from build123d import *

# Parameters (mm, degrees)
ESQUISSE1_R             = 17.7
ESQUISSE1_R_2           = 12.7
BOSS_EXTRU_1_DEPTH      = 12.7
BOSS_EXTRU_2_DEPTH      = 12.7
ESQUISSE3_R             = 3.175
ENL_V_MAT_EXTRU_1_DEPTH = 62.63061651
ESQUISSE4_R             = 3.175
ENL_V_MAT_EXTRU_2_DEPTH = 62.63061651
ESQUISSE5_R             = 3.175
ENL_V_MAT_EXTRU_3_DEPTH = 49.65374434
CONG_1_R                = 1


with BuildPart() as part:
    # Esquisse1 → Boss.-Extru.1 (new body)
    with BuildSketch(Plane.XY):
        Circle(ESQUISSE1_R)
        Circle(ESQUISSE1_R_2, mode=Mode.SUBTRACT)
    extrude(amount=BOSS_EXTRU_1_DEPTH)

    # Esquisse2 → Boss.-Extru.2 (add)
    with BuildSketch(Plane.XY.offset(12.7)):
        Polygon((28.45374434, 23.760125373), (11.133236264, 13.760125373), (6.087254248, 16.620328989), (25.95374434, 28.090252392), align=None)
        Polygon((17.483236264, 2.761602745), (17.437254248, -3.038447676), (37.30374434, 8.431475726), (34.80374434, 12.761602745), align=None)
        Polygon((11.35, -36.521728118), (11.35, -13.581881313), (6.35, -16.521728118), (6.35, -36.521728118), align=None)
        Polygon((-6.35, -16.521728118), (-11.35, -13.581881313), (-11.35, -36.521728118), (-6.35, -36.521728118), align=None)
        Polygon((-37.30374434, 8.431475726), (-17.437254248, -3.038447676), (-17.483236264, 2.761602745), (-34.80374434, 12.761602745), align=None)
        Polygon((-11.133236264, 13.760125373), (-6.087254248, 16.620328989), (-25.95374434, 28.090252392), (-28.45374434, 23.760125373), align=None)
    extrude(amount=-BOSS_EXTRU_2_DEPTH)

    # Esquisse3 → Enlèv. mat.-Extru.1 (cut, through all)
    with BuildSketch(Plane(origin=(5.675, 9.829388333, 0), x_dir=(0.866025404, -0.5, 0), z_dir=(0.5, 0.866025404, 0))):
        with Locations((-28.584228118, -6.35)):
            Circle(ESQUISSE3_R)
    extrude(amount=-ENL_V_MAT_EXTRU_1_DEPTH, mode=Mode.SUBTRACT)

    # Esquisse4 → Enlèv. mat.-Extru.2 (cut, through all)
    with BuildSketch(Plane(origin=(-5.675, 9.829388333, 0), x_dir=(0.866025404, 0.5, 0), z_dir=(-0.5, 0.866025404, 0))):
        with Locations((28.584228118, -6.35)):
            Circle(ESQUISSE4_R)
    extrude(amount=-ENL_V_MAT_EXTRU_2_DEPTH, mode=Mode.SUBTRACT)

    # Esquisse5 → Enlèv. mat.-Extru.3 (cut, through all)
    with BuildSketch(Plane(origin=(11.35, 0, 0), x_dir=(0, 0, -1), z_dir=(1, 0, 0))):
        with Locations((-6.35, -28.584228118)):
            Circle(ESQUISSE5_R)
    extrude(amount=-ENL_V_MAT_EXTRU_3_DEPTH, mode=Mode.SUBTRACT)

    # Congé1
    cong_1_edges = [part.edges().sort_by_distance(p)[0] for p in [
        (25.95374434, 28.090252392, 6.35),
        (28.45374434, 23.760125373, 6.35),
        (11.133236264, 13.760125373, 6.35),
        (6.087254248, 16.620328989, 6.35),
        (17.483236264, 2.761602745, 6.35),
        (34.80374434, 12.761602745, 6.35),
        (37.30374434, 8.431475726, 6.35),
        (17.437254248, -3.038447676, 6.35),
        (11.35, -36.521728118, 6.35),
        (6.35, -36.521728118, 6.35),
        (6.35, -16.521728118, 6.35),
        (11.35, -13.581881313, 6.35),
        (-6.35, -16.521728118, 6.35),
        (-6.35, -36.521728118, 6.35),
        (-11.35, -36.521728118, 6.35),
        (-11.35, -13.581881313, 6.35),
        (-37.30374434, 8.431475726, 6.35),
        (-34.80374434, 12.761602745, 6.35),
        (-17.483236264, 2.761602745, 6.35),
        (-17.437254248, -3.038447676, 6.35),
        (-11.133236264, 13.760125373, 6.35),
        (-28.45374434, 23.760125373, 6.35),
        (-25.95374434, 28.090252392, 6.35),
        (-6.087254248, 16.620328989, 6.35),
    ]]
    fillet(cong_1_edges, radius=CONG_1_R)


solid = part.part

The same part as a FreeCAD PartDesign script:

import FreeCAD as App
import Part
import Sketcher

V = App.Vector
Q = App.Units.Quantity


def edges_at(feature, points):
    """Names of the edges that pass closest to the given points."""
    edges = feature.Shape.Edges
    near = lambda p: min(range(len(edges)), key=lambda i: edges[i].distToShape(Part.Vertex(*p))[0])
    return sorted({f"Edge{near(p) + 1}" for p in points})


def add_polygon(sketch, points):
    """Adds a closed chain of lines whose ends are joined by coincident constraints."""
    first, n = sketch.GeometryCount, len(points)
    for a, b in zip(points, points[1:] + points[:1]):
        sketch.addGeometry(Part.LineSegment(App.Vector(*a, 0), App.Vector(*b, 0)), False)
    for i in range(n):
        sketch.addConstraint(Sketcher.Constraint("Coincident", first + i, 2, first + (i + 1) % n, 1))

doc = App.newDocument("Part")
body = doc.addObject("PartDesign::Body", "Body")

sketch1 = body.newObject("Sketcher::SketchObject", "Sketch")
sketch1.AttachmentSupport = (doc.getObject("XY_Plane"), [""])
sketch1.MapMode = "FlatFace"
sketch1.addGeometry([
    Part.Circle(V(0, 0, 0), V(0, 0, 1), 18),
    Part.Circle(V(0, 0, 0), V(0, 0, 1), 13),
], False)
sketch1.addConstraint([
    Sketcher.Constraint("Coincident", 0, 3, -1, 1),
    Sketcher.Constraint("Coincident", 1, 3, -1, 1),
    Sketcher.Constraint("Diameter", 0, 35.4),
    Sketcher.Constraint("Diameter", 1, 25.4),
])
pad1 = body.newObject("PartDesign::Pad", "Pad")
pad1.Profile = sketch1
pad1.Length = 12.7

sketch2 = body.newObject("Sketcher::SketchObject", "Sketch001")
sketch2.AttachmentSupport = (doc.getObject("XY_Plane"), [""])
sketch2.MapMode = "FlatFace"
sketch2.AttachmentOffset = App.Placement(V(0, 0, 12.7), App.Rotation())
add_polygon(sketch2, [(11, 14), (28, 24), (26, 28), (6, 17)])
add_polygon(sketch2, [(17, 3), (17, -3), (37, 8), (35, 13)])
add_polygon(sketch2, [(11, -37), (11, -14), (6, -17), (6, -37)])
add_polygon(sketch2, [(-6, -17), (-11, -14), (-11, -37), (-6, -37)])
add_polygon(sketch2, [(-37, 8), (-17, -3), (-17, 3), (-35, 13)])
add_polygon(sketch2, [(-11, 14), (-6, 17), (-26, 28), (-28, 24)])
sketch2.addConstraint([
    Sketcher.Constraint("Vertical", 8),
    Sketcher.Constraint("Vertical", 10),
    Sketcher.Constraint("Horizontal", 11),
    Sketcher.Constraint("Vertical", 13),
    Sketcher.Constraint("Horizontal", 14),
    Sketcher.Constraint("Vertical", 15),
    Sketcher.Constraint("Symmetric", 8, 2, 12, 2, -2),
    Sketcher.Constraint("Symmetric", 10, 2, 14, 2, -2),
    Sketcher.Constraint("Symmetric", 4, 2, 16, 2, -2),
    Sketcher.Constraint("Symmetric", 7, 2, 17, 2, -2),
    Sketcher.Constraint("Symmetric", 6, 2, 18, 2, -2),
    Sketcher.Constraint("Symmetric", 5, 2, 19, 2, -2),
    Sketcher.Constraint("Symmetric", 2, 2, 20, 2, -2),
    Sketcher.Constraint("Symmetric", 1, 2, 21, 2, -2),
    Sketcher.Constraint("Symmetric", 0, 2, 22, 2, -2),
    Sketcher.Constraint("Symmetric", 3, 2, 23, 2, -2),
    Sketcher.Constraint("Perpendicular", 0, 1),
    Sketcher.Constraint("Perpendicular", 1, 2),
    Sketcher.Constraint("Parallel", 2, 5),
    Sketcher.Constraint("Perpendicular", 5, 6),
    Sketcher.Constraint("Perpendicular", 6, 7),
    Sketcher.Constraint("Horizontal", 9, 2, 15, 2),
    Sketcher.Constraint("Equal", 3, 4),
    Sketcher.Constraint("Equal", 2, 5),
    Sketcher.Constraint("Equal", 1, 6),
    Sketcher.Constraint("Equal", 4, 9),
    Sketcher.Constraint("DistanceX", 11, 1, 11, 2, 5.0),
    Sketcher.Constraint("DistanceY", 10, 2, 10, 1, 20.0),
    Sketcher.Constraint("Angle", 0, Q("30 deg")),
    Sketcher.Constraint("Distance", 0, 20.0),
    Sketcher.Constraint("Distance", 1, 5.0),
    Sketcher.Constraint("DistanceX", 12, 2, 9, 2, 17.7),
    Sketcher.Constraint("DistanceX", 2, 2, 4, 2, 11.35),
    Sketcher.Constraint("DistanceX", 18, 2, 2, 2, 40.890999),
    Sketcher.Constraint("DistanceY", 4, 2, 1, 2, 31.1287),
    Sketcher.Constraint("DistanceY", 8, 1, 8, 2, 22.939847),
    Sketcher.Constraint("DistanceY", -1, 1, 2, 2, 16.620329),
    Sketcher.Constraint("DistanceY", 8, 2, -1, 1, 13.581881),
])
pad2 = body.newObject("PartDesign::Pad", "Pad001")
pad2.Profile = sketch2
pad2.Length = 12.7
pad2.Reversed = True

sketch3 = body.newObject("Sketcher::SketchObject", "Sketch002")
sketch3.Placement = App.Placement(V(5.675, 9.829388, 0), App.Rotation(V(0.866025404, -0.5, 0), V(0, 0, -1), V(0.5, 0.866025404, 0), "ZXY"))
sketch3.addGeometry(Part.Circle(V(-28.6, -6.4, 0), V(0, 0, 1), 3.2), False)
sketch3.addConstraint([
    Sketcher.Constraint("Diameter", 0, 6.35),
    Sketcher.Constraint("DistanceY", 0, 3, -1, 1, 6.35),
    Sketcher.Constraint("DistanceX", 0, 3, -1, 1, 28.584228),
])
pocket1 = body.newObject("PartDesign::Pocket", "Pocket")
pocket1.Profile = sketch3
pocket1.Type = "ThroughAll"

sketch4 = body.newObject("Sketcher::SketchObject", "Sketch003")
sketch4.Placement = App.Placement(V(-5.675, 9.829388, 0), App.Rotation(V(0.866025404, 0.5, 0), V(0, 0, -1), V(-0.5, 0.866025404, 0), "ZXY"))
sketch4.addGeometry(Part.Circle(V(28.6, -6.4, 0), V(0, 0, 1), 3.2), False)
sketch4.addConstraint([
    Sketcher.Constraint("Diameter", 0, 6.35),
    Sketcher.Constraint("DistanceY", 0, 3, -1, 1, 6.35),
    Sketcher.Constraint("DistanceX", -1, 1, 0, 3, 28.584228),
])
pocket2 = body.newObject("PartDesign::Pocket", "Pocket001")
pocket2.Profile = sketch4
pocket2.Type = "ThroughAll"

sketch5 = body.newObject("Sketcher::SketchObject", "Sketch004")
sketch5.AttachmentSupport = (doc.getObject("YZ_Plane"), [""])
sketch5.MapMode = "FlatFace"
sketch5.AttachmentOffset = App.Placement(V(0, 0, 11.35), App.Rotation())
sketch5.addGeometry(Part.Circle(V(-28.6, 6.3, 0), V(0, 0, 1), 3.2), False)
sketch5.addConstraint([
    Sketcher.Constraint("Diameter", 0, 6.35),
    Sketcher.Constraint("DistanceY", -1, 1, 0, 3, 6.35),
    Sketcher.Constraint("DistanceX", 0, 3, -1, 1, 28.584228),
])
pocket3 = body.newObject("PartDesign::Pocket", "Pocket002")
pocket3.Profile = sketch5
pocket3.Type = "ThroughAll"
doc.recompute()

fillet = body.newObject("PartDesign::Fillet", "Fillet")
fillet.Base = (pocket3, edges_at(pocket3, [
    (25.954, 28.09, 6.35),
    (28.454, 23.76, 6.35),
    (11.133, 13.76, 6.35),
    (6.087, 16.62, 6.35),
    (17.483, 2.762, 6.35),
    (34.804, 12.762, 6.35),
    (37.304, 8.431, 6.35),
    (17.437, -3.038, 6.35),
    (11.35, -36.522, 6.35),
    (6.35, -36.522, 6.35),
    (6.35, -16.522, 6.35),
    (11.35, -13.582, 6.35),
    (-6.35, -16.522, 6.35),
    (-6.35, -36.522, 6.35),
    (-11.35, -36.522, 6.35),
    (-11.35, -13.582, 6.35),
    (-37.304, 8.431, 6.35),
    (-34.804, 12.762, 6.35),
    (-17.483, 2.762, 6.35),
    (-17.437, -3.038, 6.35),
    (-11.133, 13.76, 6.35),
    (-28.454, 23.76, 6.35),
    (-25.954, 28.09, 6.35),
    (-6.087, 16.62, 6.35),
]))
fillet.Radius = 1

doc.recompute()
